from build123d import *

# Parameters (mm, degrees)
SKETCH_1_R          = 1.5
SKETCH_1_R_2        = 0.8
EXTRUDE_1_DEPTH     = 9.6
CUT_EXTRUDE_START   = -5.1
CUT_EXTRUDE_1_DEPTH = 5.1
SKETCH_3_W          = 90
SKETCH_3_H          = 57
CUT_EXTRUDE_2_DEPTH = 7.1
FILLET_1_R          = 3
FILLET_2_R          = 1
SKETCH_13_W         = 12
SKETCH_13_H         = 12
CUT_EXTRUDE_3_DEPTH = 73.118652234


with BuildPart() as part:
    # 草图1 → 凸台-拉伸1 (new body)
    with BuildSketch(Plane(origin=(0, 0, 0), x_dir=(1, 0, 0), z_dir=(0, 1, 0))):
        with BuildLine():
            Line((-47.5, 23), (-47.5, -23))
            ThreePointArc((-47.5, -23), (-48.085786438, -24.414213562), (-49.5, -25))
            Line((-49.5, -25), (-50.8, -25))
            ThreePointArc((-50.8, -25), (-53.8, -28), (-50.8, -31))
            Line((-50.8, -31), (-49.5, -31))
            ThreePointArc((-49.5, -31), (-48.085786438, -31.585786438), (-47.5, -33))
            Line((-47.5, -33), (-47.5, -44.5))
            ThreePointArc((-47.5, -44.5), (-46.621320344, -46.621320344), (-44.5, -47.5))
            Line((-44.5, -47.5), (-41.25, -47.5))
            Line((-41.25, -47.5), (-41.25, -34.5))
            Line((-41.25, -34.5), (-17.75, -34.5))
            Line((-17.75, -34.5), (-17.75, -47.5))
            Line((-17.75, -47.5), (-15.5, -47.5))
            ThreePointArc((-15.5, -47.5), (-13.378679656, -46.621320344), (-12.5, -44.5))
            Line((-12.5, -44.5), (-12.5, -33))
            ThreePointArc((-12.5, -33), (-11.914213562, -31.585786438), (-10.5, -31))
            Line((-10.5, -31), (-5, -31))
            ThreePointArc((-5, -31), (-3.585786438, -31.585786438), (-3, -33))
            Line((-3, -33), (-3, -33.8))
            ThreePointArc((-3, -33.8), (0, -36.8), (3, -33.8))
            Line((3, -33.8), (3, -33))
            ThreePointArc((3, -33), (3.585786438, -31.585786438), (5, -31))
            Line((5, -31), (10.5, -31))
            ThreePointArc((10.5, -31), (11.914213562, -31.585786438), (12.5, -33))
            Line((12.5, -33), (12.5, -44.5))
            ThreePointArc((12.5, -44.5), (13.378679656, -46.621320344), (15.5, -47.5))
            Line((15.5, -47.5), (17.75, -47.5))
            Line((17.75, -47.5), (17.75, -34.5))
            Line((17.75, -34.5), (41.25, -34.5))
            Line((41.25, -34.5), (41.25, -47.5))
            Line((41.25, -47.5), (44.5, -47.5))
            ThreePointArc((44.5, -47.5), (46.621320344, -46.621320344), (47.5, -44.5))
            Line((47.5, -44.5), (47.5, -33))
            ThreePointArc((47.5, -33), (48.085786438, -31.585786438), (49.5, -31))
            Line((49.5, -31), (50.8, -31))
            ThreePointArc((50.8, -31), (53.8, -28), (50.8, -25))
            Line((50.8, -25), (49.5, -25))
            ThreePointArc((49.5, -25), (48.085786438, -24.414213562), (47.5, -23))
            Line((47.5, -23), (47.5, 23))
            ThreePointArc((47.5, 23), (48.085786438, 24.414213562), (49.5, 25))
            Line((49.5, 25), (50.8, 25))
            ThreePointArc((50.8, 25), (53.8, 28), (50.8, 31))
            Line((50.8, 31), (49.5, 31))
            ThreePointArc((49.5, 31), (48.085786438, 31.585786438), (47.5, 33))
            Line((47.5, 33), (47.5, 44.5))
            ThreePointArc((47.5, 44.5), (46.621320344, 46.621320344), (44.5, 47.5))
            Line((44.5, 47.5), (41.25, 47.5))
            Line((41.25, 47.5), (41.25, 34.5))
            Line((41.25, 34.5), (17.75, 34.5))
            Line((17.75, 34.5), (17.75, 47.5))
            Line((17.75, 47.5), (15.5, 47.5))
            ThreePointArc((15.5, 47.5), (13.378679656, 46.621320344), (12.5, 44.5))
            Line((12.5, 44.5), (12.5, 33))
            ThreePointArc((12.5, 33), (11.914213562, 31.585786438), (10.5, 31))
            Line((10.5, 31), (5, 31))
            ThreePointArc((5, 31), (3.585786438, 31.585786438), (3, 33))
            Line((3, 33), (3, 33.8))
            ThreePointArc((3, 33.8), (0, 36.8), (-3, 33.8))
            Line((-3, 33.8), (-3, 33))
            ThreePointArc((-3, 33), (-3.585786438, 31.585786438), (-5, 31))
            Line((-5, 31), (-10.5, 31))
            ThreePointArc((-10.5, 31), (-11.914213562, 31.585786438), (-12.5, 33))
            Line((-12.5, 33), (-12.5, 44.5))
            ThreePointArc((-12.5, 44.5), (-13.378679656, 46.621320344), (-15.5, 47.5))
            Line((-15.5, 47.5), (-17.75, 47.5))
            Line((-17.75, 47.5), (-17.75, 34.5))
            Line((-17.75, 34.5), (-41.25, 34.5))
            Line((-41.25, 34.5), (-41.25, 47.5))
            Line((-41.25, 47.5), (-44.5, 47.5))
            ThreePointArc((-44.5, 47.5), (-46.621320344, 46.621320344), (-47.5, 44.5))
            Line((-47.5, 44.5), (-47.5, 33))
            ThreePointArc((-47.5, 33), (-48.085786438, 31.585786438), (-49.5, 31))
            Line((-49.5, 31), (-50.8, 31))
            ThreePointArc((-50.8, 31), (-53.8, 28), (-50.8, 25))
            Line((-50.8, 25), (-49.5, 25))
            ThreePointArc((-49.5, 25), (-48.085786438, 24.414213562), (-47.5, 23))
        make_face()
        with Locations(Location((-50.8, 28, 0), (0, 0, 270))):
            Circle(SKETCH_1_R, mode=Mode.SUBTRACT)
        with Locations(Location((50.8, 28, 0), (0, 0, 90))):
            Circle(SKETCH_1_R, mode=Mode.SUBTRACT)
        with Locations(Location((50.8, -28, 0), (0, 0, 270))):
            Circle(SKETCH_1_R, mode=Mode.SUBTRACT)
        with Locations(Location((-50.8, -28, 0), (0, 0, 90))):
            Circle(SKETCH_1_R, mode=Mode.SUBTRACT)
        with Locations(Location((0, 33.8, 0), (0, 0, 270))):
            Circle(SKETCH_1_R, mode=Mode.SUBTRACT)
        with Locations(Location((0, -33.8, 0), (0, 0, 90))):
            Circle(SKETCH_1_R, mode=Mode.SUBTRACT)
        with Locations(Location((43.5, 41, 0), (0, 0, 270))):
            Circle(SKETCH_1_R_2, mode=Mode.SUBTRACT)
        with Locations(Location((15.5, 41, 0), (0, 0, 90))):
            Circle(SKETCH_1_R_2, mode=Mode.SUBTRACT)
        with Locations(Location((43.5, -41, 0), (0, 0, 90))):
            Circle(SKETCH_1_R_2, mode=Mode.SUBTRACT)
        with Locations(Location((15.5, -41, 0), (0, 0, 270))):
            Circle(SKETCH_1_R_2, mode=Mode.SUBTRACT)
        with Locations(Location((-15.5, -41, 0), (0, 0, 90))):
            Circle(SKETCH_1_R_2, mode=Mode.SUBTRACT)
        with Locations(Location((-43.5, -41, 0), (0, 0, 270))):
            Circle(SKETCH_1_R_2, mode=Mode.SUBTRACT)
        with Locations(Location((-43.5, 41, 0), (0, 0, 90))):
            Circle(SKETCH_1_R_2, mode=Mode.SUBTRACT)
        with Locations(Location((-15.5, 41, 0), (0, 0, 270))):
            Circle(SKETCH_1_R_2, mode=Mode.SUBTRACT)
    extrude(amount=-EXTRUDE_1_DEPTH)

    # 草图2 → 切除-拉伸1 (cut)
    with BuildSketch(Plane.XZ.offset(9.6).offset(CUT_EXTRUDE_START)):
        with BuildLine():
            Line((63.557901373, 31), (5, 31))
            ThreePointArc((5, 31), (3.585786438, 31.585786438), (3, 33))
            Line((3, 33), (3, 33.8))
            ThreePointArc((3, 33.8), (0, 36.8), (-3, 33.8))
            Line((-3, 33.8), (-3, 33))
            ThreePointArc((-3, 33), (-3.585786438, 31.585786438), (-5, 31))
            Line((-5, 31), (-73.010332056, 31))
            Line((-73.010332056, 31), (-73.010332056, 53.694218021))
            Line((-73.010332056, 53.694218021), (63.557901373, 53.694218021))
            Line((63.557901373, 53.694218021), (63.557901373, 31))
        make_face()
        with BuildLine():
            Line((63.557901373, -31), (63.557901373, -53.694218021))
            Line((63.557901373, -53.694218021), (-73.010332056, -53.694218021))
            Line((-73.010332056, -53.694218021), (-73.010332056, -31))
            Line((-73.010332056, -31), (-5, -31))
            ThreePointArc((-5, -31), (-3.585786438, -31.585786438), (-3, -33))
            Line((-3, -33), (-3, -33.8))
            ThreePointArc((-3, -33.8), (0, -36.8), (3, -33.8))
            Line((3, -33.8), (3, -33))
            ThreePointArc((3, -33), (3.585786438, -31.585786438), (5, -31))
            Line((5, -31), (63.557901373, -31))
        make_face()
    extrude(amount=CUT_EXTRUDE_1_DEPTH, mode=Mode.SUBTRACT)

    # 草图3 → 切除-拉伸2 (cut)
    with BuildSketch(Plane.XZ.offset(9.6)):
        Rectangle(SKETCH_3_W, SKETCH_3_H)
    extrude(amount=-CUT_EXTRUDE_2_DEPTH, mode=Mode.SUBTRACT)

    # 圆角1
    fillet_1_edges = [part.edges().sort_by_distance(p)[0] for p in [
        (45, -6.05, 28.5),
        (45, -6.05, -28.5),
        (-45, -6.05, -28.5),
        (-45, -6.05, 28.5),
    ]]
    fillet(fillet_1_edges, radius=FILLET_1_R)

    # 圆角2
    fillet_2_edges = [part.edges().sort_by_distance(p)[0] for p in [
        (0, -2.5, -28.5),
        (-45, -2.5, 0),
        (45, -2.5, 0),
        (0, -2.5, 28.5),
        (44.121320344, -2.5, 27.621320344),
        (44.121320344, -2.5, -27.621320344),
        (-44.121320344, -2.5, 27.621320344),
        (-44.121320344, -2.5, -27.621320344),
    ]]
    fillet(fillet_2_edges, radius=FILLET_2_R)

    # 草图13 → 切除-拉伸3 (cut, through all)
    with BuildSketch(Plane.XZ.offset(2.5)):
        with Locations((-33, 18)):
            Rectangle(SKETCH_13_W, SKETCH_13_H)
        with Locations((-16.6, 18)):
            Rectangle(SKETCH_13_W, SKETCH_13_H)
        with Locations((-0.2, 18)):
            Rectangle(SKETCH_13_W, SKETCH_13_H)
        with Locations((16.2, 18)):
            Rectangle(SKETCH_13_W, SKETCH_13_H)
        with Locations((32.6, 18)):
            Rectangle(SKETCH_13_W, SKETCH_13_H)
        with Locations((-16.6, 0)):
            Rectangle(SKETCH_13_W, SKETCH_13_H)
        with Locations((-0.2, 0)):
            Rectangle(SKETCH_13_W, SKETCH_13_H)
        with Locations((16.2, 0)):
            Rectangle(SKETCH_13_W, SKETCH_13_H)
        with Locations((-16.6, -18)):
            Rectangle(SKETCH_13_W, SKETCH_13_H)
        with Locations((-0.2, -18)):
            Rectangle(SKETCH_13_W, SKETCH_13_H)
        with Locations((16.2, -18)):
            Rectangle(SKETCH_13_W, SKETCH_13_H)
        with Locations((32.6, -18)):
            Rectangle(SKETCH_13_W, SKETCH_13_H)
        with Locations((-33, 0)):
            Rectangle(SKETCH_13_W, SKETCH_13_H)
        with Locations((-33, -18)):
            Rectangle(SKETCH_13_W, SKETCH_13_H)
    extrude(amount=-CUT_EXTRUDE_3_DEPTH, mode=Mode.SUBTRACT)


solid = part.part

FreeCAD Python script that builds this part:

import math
import FreeCAD as App
import Part
import Sketcher
Q = App.Units.Quantity


def edges_at(feature, points):
    """Names of the edges that pass closest to the given points."""
    edges = feature.Shape.Edges
    near = lambda p: min(range(len(edges)), key=lambda i: edges[i].distToShape(Part.Vertex(*p))[0])
    return sorted({f"Edge{near(p) + 1}" for p in points})

doc = App.newDocument("Part")
params = doc.addObject("Spreadsheet::Sheet", "Params")
for row, (alias, value) in enumerate([
    ("sketch1_diameter", "3 mm"),
    ("sketch1_radius", "2 mm"),
    ("sketch1_radius2", "3 mm"),
    ("sketch1_diameter2", "1.6 mm"),
    ("sketch1_height", "46 mm"),
    ("pad1_length", "9.6 mm"),
    ("sketch2_radius", "2 mm"),
    ("sketch2_radius2", "3 mm"),
    ("sketch2_height", "0.8 mm"),
    ("pocket1_length", "5.1 mm"),
    ("sketch3_width", "90 mm"),
    ("sketch3_height", "57 mm"),
    ("pocket2_length", "7.1 mm"),
    ("fillet_radius", "3 mm"),
    ("fillet2_radius", "1 mm"),
    ("sketch4_width", "12 mm"),
], start=1):
    params.set(f"A{row}", alias)
    params.set(f"B{row}", "=" + value)
    params.setAlias(f"B{row}", alias)

body = doc.addObject("PartDesign::Body", "Body")

sketch1 = doc.addObject("Sketcher::SketchObject", "Sketch")
body.addObject(sketch1)
sketch1.AttachmentSupport = (doc.XZ_Plane, [""])
sketch1.MapMode = "FlatFace"
sketch1.addGeometry([
    Part.LineSegment(App.Vector(-47.5, -23, 0), App.Vector(-47.5, 23, 0)),
    Part.ArcOfCircle(Part.Circle(App.Vector(-49.5, 23, 0), App.Vector(0, 0, 1), 2), math.radians(0), math.radians(90)),
    Part.LineSegment(App.Vector(-49.5, 25, 0), App.Vector(-50.8, 25, 0)),
    Part.ArcOfCircle(Part.Circle(App.Vector(-50.8, 28, 0), App.Vector(0, 0, 1), 3), math.radians(90), math.radians(270)),
    Part.LineSegment(App.Vector(-50.8, 31, 0), App.Vector(-49.5, 31, 0)),
    Part.ArcOfCircle(Part.Circle(App.Vector(-49.5, 33, 0), App.Vector(0, 0, 1), 2), math.radians(-90), math.radians(0)),
    Part.LineSegment(App.Vector(-47.5, 33, 0), App.Vector(-47.5, 44.5, 0)),
    Part.ArcOfCircle(Part.Circle(App.Vector(-44.5, 44.5, 0), App.Vector(0, 0, 1), 3), math.radians(90), math.radians(180)),
    Part.LineSegment(App.Vector(-44.5, 47.5, 0), App.Vector(-41.2, 47.5, 0)),
    Part.LineSegment(App.Vector(-41.2, 47.5, 0), App.Vector(-41.2, 34.5, 0)),
    Part.LineSegment(App.Vector(-41.2, 34.5, 0), App.Vector(-17.8, 34.5, 0)),
    Part.LineSegment(App.Vector(-17.8, 34.5, 0), App.Vector(-17.8, 47.5, 0)),
    Part.LineSegment(App.Vector(-17.8, 47.5, 0), App.Vector(-15.5, 47.5, 0)),
    Part.ArcOfCircle(Part.Circle(App.Vector(-15.5, 44.5, 0), App.Vector(0, 0, 1), 3), math.radians(0), math.radians(90)),
    Part.LineSegment(App.Vector(-12.5, 44.5, 0), App.Vector(-12.5, 33, 0)),
    Part.ArcOfCircle(Part.Circle(App.Vector(-10.5, 33, 0), App.Vector(0, 0, 1), 2), math.radians(-180), math.radians(-90)),
    Part.LineSegment(App.Vector(-10.5, 31, 0), App.Vector(-5, 31, 0)),
    Part.ArcOfCircle(Part.Circle(App.Vector(-5, 33, 0), App.Vector(0, 0, 1), 2), math.radians(-90), math.radians(0)),
    Part.LineSegment(App.Vector(-3, 33, 0), App.Vector(-3, 33.8, 0)),
    Part.ArcOfCircle(Part.Circle(App.Vector(0, 33.8, 0), App.Vector(0, 0, 1), 3), math.radians(0), math.radians(180)),
    Part.LineSegment(App.Vector(3, 33.8, 0), App.Vector(3, 33, 0)),
    Part.ArcOfCircle(Part.Circle(App.Vector(5, 33, 0), App.Vector(0, 0, 1), 2), math.radians(-180), math.radians(-90)),
    Part.LineSegment(App.Vector(5, 31, 0), App.Vector(10.5, 31, 0)),
    Part.ArcOfCircle(Part.Circle(App.Vector(10.5, 33, 0), App.Vector(0, 0, 1), 2), math.radians(-90), math.radians(0)),
    Part.LineSegment(App.Vector(12.5, 33, 0), App.Vector(12.5, 44.5, 0)),
    Part.ArcOfCircle(Part.Circle(App.Vector(15.5, 44.5, 0), App.Vector(0, 0, 1), 3), math.radians(90), math.radians(180)),
    Part.LineSegment(App.Vector(15.5, 47.5, 0), App.Vector(17.8, 47.5, 0)),
    Part.LineSegment(App.Vector(17.8, 47.5, 0), App.Vector(17.8, 34.5, 0)),
    Part.LineSegment(App.Vector(17.8, 34.5, 0), App.Vector(41.2, 34.5, 0)),
    Part.LineSegment(App.Vector(41.2, 34.5, 0), App.Vector(41.2, 47.5, 0)),
    Part.LineSegment(App.Vector(41.2, 47.5, 0), App.Vector(44.5, 47.5, 0)),
    Part.ArcOfCircle(Part.Circle(App.Vector(44.5, 44.5, 0), App.Vector(0, 0, 1), 3), math.radians(0), math.radians(90)),
    Part.LineSegment(App.Vector(47.5, 44.5, 0), App.Vector(47.5, 33, 0)),
    Part.ArcOfCircle(Part.Circle(App.Vector(49.5, 33, 0), App.Vector(0, 0, 1), 2), math.radians(-180), math.radians(-90)),
    Part.LineSegment(App.Vector(49.5, 31, 0), App.Vector(50.8, 31, 0)),
    Part.ArcOfCircle(Part.Circle(App.Vector(50.8, 28, 0), App.Vector(0, 0, 1), 3), math.radians(-90), math.radians(90)),
    Part.LineSegment(App.Vector(50.8, 25, 0), App.Vector(49.5, 25, 0)),
    Part.ArcOfCircle(Part.Circle(App.Vector(49.5, 23, 0), App.Vector(0, 0, 1), 2), math.radians(90), math.radians(180)),
    Part.LineSegment(App.Vector(47.5, 23, 0), App.Vector(47.5, -23, 0)),
    Part.ArcOfCircle(Part.Circle(App.Vector(49.5, -23, 0), App.Vector(0, 0, 1), 2), math.radians(-180), math.radians(-90)),
    Part.LineSegment(App.Vector(49.5, -25, 0), App.Vector(50.8, -25, 0)),
    Part.ArcOfCircle(Part.Circle(App.Vector(50.8, -28, 0), App.Vector(0, 0, 1), 3), math.radians(-90), math.radians(90)),
    Part.LineSegment(App.Vector(50.8, -31, 0), App.Vector(49.5, -31, 0)),
    Part.ArcOfCircle(Part.Circle(App.Vector(49.5, -33, 0), App.Vector(0, 0, 1), 2), math.radians(90), math.radians(180)),
    Part.LineSegment(App.Vector(47.5, -33, 0), App.Vector(47.5, -44.5, 0)),
    Part.ArcOfCircle(Part.Circle(App.Vector(44.5, -44.5, 0), App.Vector(0, 0, 1), 3), math.radians(-90), math.radians(0)),
    Part.LineSegment(App.Vector(44.5, -47.5, 0), App.Vector(41.2, -47.5, 0)),
    Part.LineSegment(App.Vector(41.2, -47.5, 0), App.Vector(41.2, -34.5, 0)),
    Part.LineSegment(App.Vector(41.2, -34.5, 0), App.Vector(17.8, -34.5, 0)),
    Part.LineSegment(App.Vector(17.8, -34.5, 0), App.Vector(17.8, -47.5, 0)),
    Part.LineSegment(App.Vector(17.8, -47.5, 0), App.Vector(15.5, -47.5, 0)),
    Part.ArcOfCircle(Part.Circle(App.Vector(15.5, -44.5, 0), App.Vector(0, 0, 1), 3), math.radians(180), math.radians(270)),
    Part.LineSegment(App.Vector(12.5, -44.5, 0), App.Vector(12.5, -33, 0)),
    Part.ArcOfCircle(Part.Circle(App.Vector(10.5, -33, 0), App.Vector(0, 0, 1), 2), math.radians(0), math.radians(90)),
    Part.LineSegment(App.Vector(10.5, -31, 0), App.Vector(5, -31, 0)),
    Part.ArcOfCircle(Part.Circle(App.Vector(5, -33, 0), App.Vector(0, 0, 1), 2), math.radians(90), math.radians(180)),
    Part.LineSegment(App.Vector(3, -33, 0), App.Vector(3, -33.8, 0)),
    Part.ArcOfCircle(Part.Circle(App.Vector(0, -33.8, 0), App.Vector(0, 0, 1), 3), math.radians(180), math.radians(360)),
    Part.LineSegment(App.Vector(-3, -33.8, 0), App.Vector(-3, -33, 0)),
    Part.ArcOfCircle(Part.Circle(App.Vector(-5, -33, 0), App.Vector(0, 0, 1), 2), math.radians(0), math.radians(90)),
    Part.LineSegment(App.Vector(-5, -31, 0), App.Vector(-10.5, -31, 0)),
    Part.ArcOfCircle(Part.Circle(App.Vector(-10.5, -33, 0), App.Vector(0, 0, 1), 2), math.radians(90), math.radians(180)),
    Part.LineSegment(App.Vector(-12.5, -33, 0), App.Vector(-12.5, -44.5, 0)),
    Part.ArcOfCircle(Part.Circle(App.Vector(-15.5, -44.5, 0), App.Vector(0, 0, 1), 3), math.radians(-90), math.radians(0)),
    Part.LineSegment(App.Vector(-15.5, -47.5, 0), App.Vector(-17.8, -47.5, 0)),
    Part.LineSegment(App.Vector(-17.8, -47.5, 0), App.Vector(-17.8, -34.5, 0)),
    Part.LineSegment(App.Vector(-17.8, -34.5, 0), App.Vector(-41.2, -34.5, 0)),
    Part.LineSegment(App.Vector(-41.2, -34.5, 0), App.Vector(-41.2, -47.5, 0)),
    Part.LineSegment(App.Vector(-41.2, -47.5, 0), App.Vector(-44.5, -47.5, 0)),
    Part.ArcOfCircle(Part.Circle(App.Vector(-44.5, -44.5, 0), App.Vector(0, 0, 1), 3), math.radians(180), math.radians(270)),
    Part.LineSegment(App.Vector(-47.5, -44.5, 0), App.Vector(-47.5, -33, 0)),
    Part.ArcOfCircle(Part.Circle(App.Vector(-49.5, -33, 0), App.Vector(0, 0, 1), 2), math.radians(0), math.radians(90)),
    Part.LineSegment(App.Vector(-49.5, -31, 0), App.Vector(-50.8, -31, 0)),
    Part.ArcOfCircle(Part.Circle(App.Vector(-50.8, -28, 0), App.Vector(0, 0, 1), 3), math.radians(90), math.radians(270)),
    Part.LineSegment(App.Vector(-50.8, -25, 0), App.Vector(-49.5, -25, 0)),
    Part.ArcOfCircle(Part.Circle(App.Vector(-49.5, -23, 0), App.Vector(0, 0, 1), 2), math.radians(-90), math.radians(0)),
    Part.Circle(App.Vector(-43.5, 41, 0), App.Vector(0, 0, 1), 0.8),
    Part.Circle(App.Vector(-50.8, 28, 0), App.Vector(0, 0, 1), 1.5),
    Part.Circle(App.Vector(-15.5, 41, 0), App.Vector(0, 0, 1), 0.8),
    Part.Circle(App.Vector(0, 33.8, 0), App.Vector(0, 0, 1), 1.5),
    Part.Circle(App.Vector(15.5, 41, 0), App.Vector(0, 0, 1), 0.8),
    Part.Circle(App.Vector(43.5, 41, 0), App.Vector(0, 0, 1), 0.8),
    Part.Circle(App.Vector(50.8, 28, 0), App.Vector(0, 0, 1), 1.5),
    Part.Circle(App.Vector(-50.8, -28, 0), App.Vector(0, 0, 1), 1.5),
    Part.Circle(App.Vector(-43.5, -41, 0), App.Vector(0, 0, 1), 0.8),
    Part.Circle(App.Vector(-15.5, -41, 0), App.Vector(0, 0, 1), 0.8),
    Part.Circle(App.Vector(0, -33.8, 0), App.Vector(0, 0, 1), 1.5),
    Part.Circle(App.Vector(15.5, -41, 0), App.Vector(0, 0, 1), 0.8),
    Part.Circle(App.Vector(50.8, -28, 0), App.Vector(0, 0, 1), 1.5),
    Part.Circle(App.Vector(43.5, -41, 0), App.Vector(0, 0, 1), 0.8),
], False)
sketch1.addConstraint([
    Sketcher.Constraint("Tangent", 0, 2, 1, 1),
    Sketcher.Constraint("Tangent", 1, 2, 2, 1),
    Sketcher.Constraint("Tangent", 2, 2, 3, 2),
    Sketcher.Constraint("Tangent", 3, 1, 4, 1),
    Sketcher.Constraint("Tangent", 4, 2, 5, 1),
    Sketcher.Constraint("Tangent", 5, 2, 6, 1),
    Sketcher.Constraint("Tangent", 6, 2, 7, 2),
    Sketcher.Constraint("Tangent", 7, 1, 8, 1),
    Sketcher.Constraint("Coincident", 8, 2, 9, 1),
    Sketcher.Constraint("Coincident", 9, 2, 10, 1),
    Sketcher.Constraint("Coincident", 10, 2, 11, 1),
    Sketcher.Constraint("Coincident", 11, 2, 12, 1),
    Sketcher.Constraint("Tangent", 12, 2, 13, 2),
    Sketcher.Constraint("Tangent", 13, 1, 14, 1),
    Sketcher.Constraint("Tangent", 14, 2, 15, 1),
    Sketcher.Constraint("Tangent", 15, 2, 16, 1),
    Sketcher.Constraint("Tangent", 16, 2, 17, 1),
    Sketcher.Constraint("Tangent", 17, 2, 18, 1),
    Sketcher.Constraint("Tangent", 18, 2, 19, 2),
    Sketcher.Constraint("Tangent", 19, 1, 20, 1),
    Sketcher.Constraint("Tangent", 20, 2, 21, 1),
    Sketcher.Constraint("Tangent", 21, 2, 22, 1),
    Sketcher.Constraint("Tangent", 22, 2, 23, 1),
    Sketcher.Constraint("Tangent", 23, 2, 24, 1),
    Sketcher.Constraint("Tangent", 24, 2, 25, 2),
    Sketcher.Constraint("Tangent", 25, 1, 26, 1),
    Sketcher.Constraint("Coincident", 26, 2, 27, 1),
    Sketcher.Constraint("Coincident", 27, 2, 28, 1),
    Sketcher.Constraint("Coincident", 28, 2, 29, 1),
    Sketcher.Constraint("Coincident", 29, 2, 30, 1),
    Sketcher.Constraint("Tangent", 30, 2, 31, 2),
    Sketcher.Constraint("Tangent", 31, 1, 32, 1),
    Sketcher.Constraint("Tangent", 32, 2, 33, 1),
    Sketcher.Constraint("Tangent", 33, 2, 34, 1),
    Sketcher.Constraint("Tangent", 34, 2, 35, 2),
    Sketcher.Constraint("Tangent", 35, 1, 36, 1),
    Sketcher.Constraint("Tangent", 36, 2, 37, 1),
    Sketcher.Constraint("Tangent", 37, 2, 38, 1),
    Sketcher.Constraint("Tangent", 38, 2, 39, 1),
    Sketcher.Constraint("Tangent", 39, 2, 40, 1),
    Sketcher.Constraint("Tangent", 40, 2, 41, 2),
    Sketcher.Constraint("Tangent", 41, 1, 42, 1),
    Sketcher.Constraint("Tangent", 42, 2, 43, 1),
    Sketcher.Constraint("Tangent", 43, 2, 44, 1),
    Sketcher.Constraint("Tangent", 44, 2, 45, 2),
    Sketcher.Constraint("Tangent", 45, 1, 46, 1),
    Sketcher.Constraint("Coincident", 46, 2, 47, 1),
    Sketcher.Constraint("Coincident", 47, 2, 48, 1),
    Sketcher.Constraint("Coincident", 48, 2, 49, 1),
    Sketcher.Constraint("Coincident", 49, 2, 50, 1),
    Sketcher.Constraint("Tangent", 50, 2, 51, 2),
    Sketcher.Constraint("Tangent", 51, 1, 52, 1),
    Sketcher.Constraint("Tangent", 52, 2, 53, 1),
    Sketcher.Constraint("Tangent", 53, 2, 54, 1),
    Sketcher.Constraint("Tangent", 54, 2, 55, 1),
    Sketcher.Constraint("Tangent", 55, 2, 56, 1),
    Sketcher.Constraint("Tangent", 56, 2, 57, 2),
    Sketcher.Constraint("Tangent", 57, 1, 58, 1),
    Sketcher.Constraint("Tangent", 58, 2, 59, 1),
    Sketcher.Constraint("Tangent", 59, 2, 60, 1),
    Sketcher.Constraint("Tangent", 60, 2, 61, 1),
    Sketcher.Constraint("Tangent", 61, 2, 62, 1),
    Sketcher.Constraint("Tangent", 62, 2, 63, 2),
    Sketcher.Constraint("Tangent", 63, 1, 64, 1),
    Sketcher.Constraint("Coincident", 64, 2, 65, 1),
    Sketcher.Constraint("Coincident", 65, 2, 66, 1),
    Sketcher.Constraint("Coincident", 66, 2, 67, 1),
    Sketcher.Constraint("Coincident", 67, 2, 68, 1),
    Sketcher.Constraint("Tangent", 68, 2, 69, 2),
    Sketcher.Constraint("Tangent", 69, 1, 70, 1),
    Sketcher.Constraint("Tangent", 70, 2, 71, 1),
    Sketcher.Constraint("Tangent", 71, 2, 72, 1),
    Sketcher.Constraint("Tangent", 72, 2, 73, 2),
    Sketcher.Constraint("Tangent", 73, 1, 74, 1),
    Sketcher.Constraint("Tangent", 74, 2, 75, 1),
    Sketcher.Constraint("Tangent", 75, 2, 0, 1),
    Sketcher.Constraint("Vertical", 0),
    Sketcher.Constraint("Horizontal", 2),
    Sketcher.Constraint("Horizontal", 4),
    Sketcher.Constraint("Vertical", 6),
    Sketcher.Constraint("Horizontal", 8),
    Sketcher.Constraint("Vertical", 9),
    Sketcher.Constraint("Horizontal", 10),
    Sketcher.Constraint("Vertical", 11),
    Sketcher.Constraint("Horizontal", 12),
    Sketcher.Constraint("Vertical", 14),
    Sketcher.Constraint("Horizontal", 16),
    Sketcher.Constraint("Vertical", 18),
    Sketcher.Constraint("Vertical", 20),
    Sketcher.Constraint("Horizontal", 22),
    Sketcher.Constraint("Vertical", 24),
    Sketcher.Constraint("Horizontal", 26),
    Sketcher.Constraint("Vertical", 27),
    Sketcher.Constraint("Horizontal", 28),
    Sketcher.Constraint("Vertical", 29),
    Sketcher.Constraint("Horizontal", 30),
    Sketcher.Constraint("Vertical", 32),
    Sketcher.Constraint("Horizontal", 34),
    Sketcher.Constraint("Horizontal", 36),
    Sketcher.Constraint("Vertical", 38),
    Sketcher.Constraint("Horizontal", 40),
    Sketcher.Constraint("Horizontal", 42),
    Sketcher.Constraint("Vertical", 44),
    Sketcher.Constraint("Horizontal", 46),
    Sketcher.Constraint("Vertical", 47),
    Sketcher.Constraint("Horizontal", 48),
    Sketcher.Constraint("Vertical", 49),
    Sketcher.Constraint("Horizontal", 50),
    Sketcher.Constraint("Vertical", 52),
    Sketcher.Constraint("Horizontal", 54),
    Sketcher.Constraint("Vertical", 56),
    Sketcher.Constraint("Vertical", 58),
    Sketcher.Constraint("Horizontal", 60),
    Sketcher.Constraint("Vertical", 62),
    Sketcher.Constraint("Horizontal", 64),
    Sketcher.Constraint("Vertical", 65),
    Sketcher.Constraint("Horizontal", 66),
    Sketcher.Constraint("Vertical", 67),
    Sketcher.Constraint("Horizontal", 68),
    Sketcher.Constraint("Vertical", 70),
    Sketcher.Constraint("Horizontal", 72),
    Sketcher.Constraint("Horizontal", 74),
    Sketcher.Constraint("Coincident", 77, 3, 3, 3),
    Sketcher.Constraint("Coincident", 79, 3, 19, 3),
    Sketcher.Constraint("Coincident", 82, 3, 35, 3),
    Sketcher.Constraint("Coincident", 83, 3, 73, 3),
    Sketcher.Constraint("Coincident", 86, 3, 57, 3),
    Sketcher.Constraint("Coincident", 88, 3, 41, 3),
    Sketcher.Constraint("Equal", 1, 5),
    Sketcher.Constraint("Equal", 3, 7),
    Sketcher.Constraint("Equal", 7, 13),
    Sketcher.Constraint("Equal", 5, 15),
    Sketcher.Constraint("Equal", 15, 17),
    Sketcher.Constraint("Equal", 13, 19),
    Sketcher.Constraint("Equal", 17, 21),
    Sketcher.Constraint("Equal", 21, 23),
    Sketcher.Constraint("Equal", 19, 25),
    Sketcher.Constraint("Equal", 25, 31),
    Sketcher.Constraint("Equal", 23, 33),
    Sketcher.Constraint("Equal", 31, 35),
    Sketcher.Constraint("Equal", 33, 37),
    Sketcher.Constraint("Equal", 37, 39),
    Sketcher.Constraint("Equal", 35, 41),
    Sketcher.Constraint("Equal", 39, 43),
    Sketcher.Constraint("Equal", 41, 45),
    Sketcher.Constraint("Equal", 45, 51),
    Sketcher.Constraint("Equal", 43, 53),
    Sketcher.Constraint("Equal", 53, 55),
    Sketcher.Constraint("Equal", 51, 57),
    Sketcher.Constraint("Equal", 55, 59),
    Sketcher.Constraint("Equal", 59, 61),
    Sketcher.Constraint("Equal", 57, 63),
    Sketcher.Constraint("Equal", 63, 69),
    Sketcher.Constraint("Equal", 61, 71),
    Sketcher.Constraint("Equal", 69, 73),
    Sketcher.Constraint("Equal", 71, 75),
    Sketcher.Constraint("Equal", 76, 78),
    Sketcher.Constraint("Equal", 77, 79),
    Sketcher.Constraint("Equal", 78, 80),
    Sketcher.Constraint("Equal", 80, 81),
    Sketcher.Constraint("Equal", 79, 82),
    Sketcher.Constraint("Equal", 82, 83),
    Sketcher.Constraint("Equal", 81, 84),
    Sketcher.Constraint("Equal", 84, 85),
    Sketcher.Constraint("Equal", 83, 86),
    Sketcher.Constraint("Equal", 85, 87),
    Sketcher.Constraint("Equal", 86, 88),
    Sketcher.Constraint("Equal", 87, 89),
    Sketcher.Constraint("Symmetric", 1, 3, 39, 3, -1, 1),
    Sketcher.Constraint("Symmetric", 7, 3, 45, 3, -1, 1),
    Sketcher.Constraint("Symmetric", 13, 3, 51, 3, -1, 1),
    Sketcher.Constraint("Symmetric", 17, 3, 55, 3, -1, 1),
    Sketcher.Constraint("Symmetric", 23, 3, 61, 3, -1, 1),
    Sketcher.Constraint("Symmetric", 31, 3, 69, 3, -1, 1),
    Sketcher.Constraint("Symmetric", 35, 3, 73, 3, -1, 1),
    Sketcher.Constraint("Symmetric", 81, 3, 84, 3, -1, 1),
    Sketcher.Constraint("Symmetric", 80, 3, 85, 3, -1, 1),
    Sketcher.Constraint("Symmetric", 78, 3, 87, 3, -1, 1),
    Sketcher.Constraint("Symmetric", 76, 3, 89, 3, -1, 1),
    Sketcher.Constraint("Symmetric", 9, 2, 47, 2, -1, 1),
    Sketcher.Constraint("Symmetric", 26, 2, 64, 2, -1, 1),
    Sketcher.Constraint("Symmetric", 28, 2, 66, 2, -1, 1),
    Sketcher.Constraint("Symmetric", 17, 3, 21, 3, -2),
    Sketcher.Constraint("Symmetric", 13, 3, 25, 3, -2),
    Sketcher.Constraint("Symmetric", 7, 3, 31, 3, -2),
    Sketcher.Constraint("Symmetric", 3, 3, 35, 3, -2),
    Sketcher.Constraint("Symmetric", 78, 3, 80, 3, -2),
    Sketcher.Constraint("Symmetric", 76, 3, 81, 3, -2),
    Sketcher.Constraint("Symmetric", 10, 2, 27, 2, -2),
    Sketcher.Constraint("Horizontal", 7, 3, 13, 3),
    Sketcher.Constraint("Horizontal", 5, 3, 15, 3),
    Sketcher.Constraint("Horizontal", 76, 3, 78, 3),
    Sketcher.Constraint("Vertical", 1, 3, 5, 3),
    Sketcher.Constraint("Vertical", 35, 3, 41, 3),
    Sketcher.Constraint("Vertical", 63, 3, 78, 3),
    Sketcher.Constraint("Vertical", 29, 2, 46, 2),
    Sketcher.Constraint("Vertical", 27, 2, 48, 2),
    Sketcher.Constraint("Equal", 20, 56),
    Sketcher.Constraint("Diameter", 77, Q("3 mm")),
    Sketcher.Constraint("Radius", 1, Q("2 mm")),
    Sketcher.Constraint("Radius", 3, Q("3 mm")),
    Sketcher.Constraint("Diameter", 76, Q("1.6 mm")),
    Sketcher.Constraint("DistanceY", 0, 1, 0, 2, Q("46 mm")),
    Sketcher.Constraint("DistanceY", 9, 2, 9, 1, Q("13 mm")),
    Sketcher.Constraint("DistanceX", 2, 2, 2, 1, Q("1.3 mm")),
    Sketcher.Constraint("DistanceX", 10, 1, 10, 2, Q("23.5 mm")),
    Sketcher.Constraint("DistanceX", 16, 1, 16, 2, Q("5.5 mm")),
    Sketcher.Constraint("DistanceY", 6, 1, 6, 2, Q("11.5 mm")),
    Sketcher.Constraint("DistanceY", 18, 1, 18, 2, Q("0.8 mm")),
    Sketcher.Constraint("DistanceY", -1, 1, 76, 3, Q("41 mm")),
    Sketcher.Constraint("DistanceX", 8, 1, 8, 2, Q("3.25 mm")),
    Sketcher.Constraint("DistanceX", 12, 1, 12, 2, Q("2.25 mm")),
    Sketcher.Constraint("DistanceX", 76, 3, -1, 1, Q("43.5 mm")),
])
sketch1.setExpression("Constraints[198]", "Params.sketch1_diameter")
sketch1.setExpression("Constraints[199]", "Params.sketch1_radius")
sketch1.setExpression("Constraints[200]", "Params.sketch1_radius2")
sketch1.setExpression("Constraints[201]", "Params.sketch1_diameter2")
sketch1.setExpression("Constraints[202]", "Params.sketch1_height")
pad1 = doc.addObject("PartDesign::Pad", "Pad")
body.addObject(pad1)
pad1.Profile = sketch1
pad1.setExpression("Length", "Params.pad1_length")

sketch2 = doc.addObject("Sketcher::SketchObject", "Sketch001")
body.addObject(sketch2)
sketch2.AttachmentSupport = (doc.XZ_Plane, [""])
sketch2.MapMode = "FlatFace"
sketch2.AttachmentOffset = App.Placement(App.Vector(0, 0, 4.5), App.Rotation())
sketch2.addGeometry([
    Part.LineSegment(App.Vector(5, 31, 0), App.Vector(63.6, 31, 0)),
    Part.LineSegment(App.Vector(63.6, 31, 0), App.Vector(63.6, 53.7, 0)),
    Part.LineSegment(App.Vector(63.6, 53.7, 0), App.Vector(-73, 53.7, 0)),
    Part.LineSegment(App.Vector(-73, 53.7, 0), App.Vector(-73, 31, 0)),
    Part.LineSegment(App.Vector(-73, 31, 0), App.Vector(-5, 31, 0)),
    Part.ArcOfCircle(Part.Circle(App.Vector(-5, 33, 0), App.Vector(0, 0, 1), 2), math.radians(-90), math.radians(0)),
    Part.LineSegment(App.Vector(-3, 33, 0), App.Vector(-3, 33.8, 0)),
    Part.ArcOfCircle(Part.Circle(App.Vector(0, 33.8, 0), App.Vector(0, 0, 1), 3), math.radians(0), math.radians(180)),
    Part.LineSegment(App.Vector(3, 33.8, 0), App.Vector(3, 33, 0)),
    Part.ArcOfCircle(Part.Circle(App.Vector(5, 33, 0), App.Vector(0, 0, 1), 2), math.radians(-180), math.radians(-90)),
    Part.LineSegment(App.Vector(63.6, -53.7, 0), App.Vector(63.6, -31, 0)),
    Part.LineSegment(App.Vector(63.6, -31, 0), App.Vector(5, -31, 0)),
    Part.ArcOfCircle(Part.Circle(App.Vector(5, -33, 0), App.Vector(0, 0, 1), 2), math.radians(90), math.radians(180)),
    Part.LineSegment(App.Vector(3, -33, 0), App.Vector(3, -33.8, 0)),
    Part.ArcOfCircle(Part.Circle(App.Vector(0, -33.8, 0), App.Vector(0, 0, 1), 3), math.radians(180), math.radians(360)),
    Part.LineSegment(App.Vector(-3, -33.8, 0), App.Vector(-3, -33, 0)),
    Part.ArcOfCircle(Part.Circle(App.Vector(-5, -33, 0), App.Vector(0, 0, 1), 2), math.radians(0), math.radians(90)),
    Part.LineSegment(App.Vector(-5, -31, 0), App.Vector(-73, -31, 0)),
    Part.LineSegment(App.Vector(-73, -31, 0), App.Vector(-73, -53.7, 0)),
    Part.LineSegment(App.Vector(-73, -53.7, 0), App.Vector(63.6, -53.7, 0)),
], False)
sketch2.addConstraint([
    Sketcher.Constraint("Coincident", 0, 2, 1, 1),
    Sketcher.Constraint("Coincident", 1, 2, 2, 1),
    Sketcher.Constraint("Coincident", 2, 2, 3, 1),
    Sketcher.Constraint("Coincident", 3, 2, 4, 1),
    Sketcher.Constraint("Tangent", 4, 2, 5, 1),
    Sketcher.Constraint("Tangent", 5, 2, 6, 1),
    Sketcher.Constraint("Tangent", 6, 2, 7, 2),
    Sketcher.Constraint("Tangent", 7, 1, 8, 1),
    Sketcher.Constraint("Tangent", 8, 2, 9, 1),
    Sketcher.Constraint("Tangent", 9, 2, 0, 1),
    Sketcher.Constraint("Coincident", 10, 2, 11, 1),
    Sketcher.Constraint("Tangent", 11, 2, 12, 1),
    Sketcher.Constraint("Tangent", 12, 2, 13, 1),
    Sketcher.Constraint("Tangent", 13, 2, 14, 2),
    Sketcher.Constraint("Tangent", 14, 1, 15, 1),
    Sketcher.Constraint("Tangent", 15, 2, 16, 1),
    Sketcher.Constraint("Tangent", 16, 2, 17, 1),
    Sketcher.Constraint("Coincident", 17, 2, 18, 1),
    Sketcher.Constraint("Coincident", 18, 2, 19, 1),
    Sketcher.Constraint("Coincident", 19, 2, 10, 1),
    Sketcher.Constraint("Horizontal", 0),
    Sketcher.Constraint("Vertical", 1),
    Sketcher.Constraint("Horizontal", 2),
    Sketcher.Constraint("Vertical", 3),
    Sketcher.Constraint("Horizontal", 4),
    Sketcher.Constraint("Vertical", 6),
    Sketcher.Constraint("Vertical", 8),
    Sketcher.Constraint("Vertical", 10),
    Sketcher.Constraint("Horizontal", 11),
    Sketcher.Constraint("Vertical", 13),
    Sketcher.Constraint("Vertical", 15),
    Sketcher.Constraint("Horizontal", 17),
    Sketcher.Constraint("Vertical", 18),
    Sketcher.Constraint("Horizontal", 19),
    Sketcher.Constraint("Equal", 5, 9),
    Sketcher.Constraint("Equal", 9, 12),
    Sketcher.Constraint("Equal", 7, 14),
    Sketcher.Constraint("Equal", 12, 16),
    Sketcher.Constraint("Symmetric", 5, 3, 12, 3, -1, 1),
    Sketcher.Constraint("Symmetric", 5, 3, 9, 3, -2),
    Sketcher.Constraint("Symmetric", 3, 2, 17, 2, -1),
    Sketcher.Constraint("Symmetric", 1, 2, 19, 2, -1),
    Sketcher.Constraint("Equal", 8, 13),
    Sketcher.Constraint("Radius", 5, Q("2 mm")),
    Sketcher.Constraint("Radius", 7, Q("3 mm")),
    Sketcher.Constraint("DistanceY", 6, 1, 6, 2, Q("0.8 mm")),
    Sketcher.Constraint("DistanceY", -1, 1, 5, 3, Q("33 mm")),
    Sketcher.Constraint("DistanceX", 0, 1, 0, 2, Q("58.557901 mm")),
    Sketcher.Constraint("DistanceY", 1, 1, 1, 2, Q("22.694218 mm")),
    Sketcher.Constraint("DistanceX", 2, 2, 2, 1, Q("136.568233 mm")),
])
sketch2.setExpression("Constraints[43]", "Params.sketch2_radius")
sketch2.setExpression("Constraints[44]", "Params.sketch2_radius2")
sketch2.setExpression("Constraints[45]", "Params.sketch2_height")
pocket1 = doc.addObject("PartDesign::Pocket", "Pocket")
body.addObject(pocket1)
pocket1.Profile = sketch2
pocket1.setExpression("Length", "Params.pocket1_length")
pocket1.Reversed = True

sketch3 = doc.addObject("Sketcher::SketchObject", "Sketch002")
body.addObject(sketch3)
sketch3.AttachmentSupport = (doc.XZ_Plane, [""])
sketch3.MapMode = "FlatFace"
sketch3.AttachmentOffset = App.Placement(App.Vector(0, 0, 9.6), App.Rotation())
sketch3.addGeometry([
    Part.LineSegment(App.Vector(-45, 28, 0), App.Vector(-45, -28, 0)),
    Part.LineSegment(App.Vector(-45, -28, 0), App.Vector(45, -28, 0)),
    Part.LineSegment(App.Vector(45, -28, 0), App.Vector(45, 28, 0)),
    Part.LineSegment(App.Vector(45, 28, 0), App.Vector(-45, 28, 0)),
], False)
sketch3.addConstraint([
    Sketcher.Constraint("Coincident", 0, 2, 1, 1),
    Sketcher.Constraint("Coincident", 1, 2, 2, 1),
    Sketcher.Constraint("Coincident", 2, 2, 3, 1),
    Sketcher.Constraint("Coincident", 3, 2, 0, 1),
    Sketcher.Constraint("Vertical", 0),
    Sketcher.Constraint("Horizontal", 1),
    Sketcher.Constraint("Vertical", 2),
    Sketcher.Constraint("Horizontal", 3),
    Sketcher.Constraint("Symmetric", 0, 2, 2, 2, -1, 1),
    Sketcher.Constraint("DistanceX", 1, 1, 1, 2, Q("90 mm")),
    Sketcher.Constraint("DistanceY", 0, 2, 0, 1, Q("57 mm")),
])
sketch3.setExpression("Constraints[9]", "Params.sketch3_width")
sketch3.setExpression("Constraints[10]", "Params.sketch3_height")
pocket2 = doc.addObject("PartDesign::Pocket", "Pocket001")
body.addObject(pocket2)
pocket2.Profile = sketch3
pocket2.setExpression("Length", "Params.pocket2_length")
doc.recompute()

fillet = doc.addObject("PartDesign::Fillet", "Fillet")
body.addObject(fillet)
fillet.Base = (pocket2, edges_at(pocket2, [
    (45, -6.05, 28.5),
    (45, -6.05, -28.5),
    (-45, -6.05, -28.5),
    (-45, -6.05, 28.5),
]))
fillet.setExpression("Radius", "Params.fillet_radius")
doc.recompute()

fillet2 = doc.addObject("PartDesign::Fillet", "Fillet001")
body.addObject(fillet2)
fillet2.Base = (fillet, edges_at(fillet, [
    (0, -2.5, -28.5),
    (-45, -2.5, 0),
    (45, -2.5, 0),
    (0, -2.5, 28.5),
    (44.121, -2.5, 27.621),
    (44.121, -2.5, -27.621),
    (-44.121, -2.5, 27.621),
    (-44.121, -2.5, -27.621),
]))
fillet2.setExpression("Radius", "Params.fillet2_radius")

sketch4 = doc.addObject("Sketcher::SketchObject", "Sketch003")
body.addObject(sketch4)
sketch4.AttachmentSupport = (doc.XZ_Plane, [""])
sketch4.MapMode = "FlatFace"
sketch4.AttachmentOffset = App.Placement(App.Vector(0, 0, 2.5), App.Rotation())
sketch4.addGeometry([
    Part.LineSegment(App.Vector(-39, 24, 0), App.Vector(-39, 12, 0)),
    Part.LineSegment(App.Vector(-39, 12, 0), App.Vector(-27, 12, 0)),
    Part.LineSegment(App.Vector(-27, 12, 0), App.Vector(-27, 24, 0)),
    Part.LineSegment(App.Vector(-27, 24, 0), App.Vector(-39, 24, 0)),
    Part.LineSegment(App.Vector(-23, 24, 0), App.Vector(-23, 12, 0)),
    Part.LineSegment(App.Vector(-23, 12, 0), App.Vector(-11, 12, 0)),
    Part.LineSegment(App.Vector(-11, 12, 0), App.Vector(-11, 24, 0)),
    Part.LineSegment(App.Vector(-11, 24, 0), App.Vector(-23, 24, 0)),
    Part.LineSegment(App.Vector(-6, 24, 0), App.Vector(-6, 12, 0)),
    Part.LineSegment(App.Vector(-6, 12, 0), App.Vector(6, 12, 0)),
    Part.LineSegment(App.Vector(6, 12, 0), App.Vector(6, 24, 0)),
    Part.LineSegment(App.Vector(6, 24, 0), App.Vector(-6, 24, 0)),
    Part.LineSegment(App.Vector(10, 24, 0), App.Vector(10, 12, 0)),
    Part.LineSegment(App.Vector(10, 12, 0), App.Vector(22, 12, 0)),
    Part.LineSegment(App.Vector(22, 12, 0), App.Vector(22, 24, 0)),
    Part.LineSegment(App.Vector(22, 24, 0), App.Vector(10, 24, 0)),
    Part.LineSegment(App.Vector(27, 24, 0), App.Vector(27, 12, 0)),
    Part.LineSegment(App.Vector(27, 12, 0), App.Vector(39, 12, 0)),
    Part.LineSegment(App.Vector(39, 12, 0), App.Vector(39, 24, 0)),
    Part.LineSegment(App.Vector(39, 24, 0), App.Vector(27, 24, 0)),
    Part.LineSegment(App.Vector(-23, 6, 0), App.Vector(-23, -6, 0)),
    Part.LineSegment(App.Vector(-23, -6, 0), App.Vector(-11, -6, 0)),
    Part.LineSegment(App.Vector(-11, -6, 0), App.Vector(-11, 6, 0)),
    Part.LineSegment(App.Vector(-11, 6, 0), App.Vector(-23, 6, 0)),
    Part.LineSegment(App.Vector(-6, 6, 0), App.Vector(-6, -6, 0)),
    Part.LineSegment(App.Vector(-6, -6, 0), App.Vector(6, -6, 0)),
    Part.LineSegment(App.Vector(6, -6, 0), App.Vector(6, 6, 0)),
    Part.LineSegment(App.Vector(6, 6, 0), App.Vector(-6, 6, 0)),
    Part.LineSegment(App.Vector(10, 6, 0), App.Vector(10, -6, 0)),
    Part.LineSegment(App.Vector(10, -6, 0), App.Vector(22, -6, 0)),
    Part.LineSegment(App.Vector(22, -6, 0), App.Vector(22, 6, 0)),
    Part.LineSegment(App.Vector(22, 6, 0), App.Vector(10, 6, 0)),
    Part.LineSegment(App.Vector(-23, -12, 0), App.Vector(-23, -24, 0)),
    Part.LineSegment(App.Vector(-23, -24, 0), App.Vector(-11, -24, 0)),
    Part.LineSegment(App.Vector(-11, -24, 0), App.Vector(-11, -12, 0)),
    Part.LineSegment(App.Vector(-11, -12, 0), App.Vector(-23, -12, 0)),
    Part.LineSegment(App.Vector(-6, -12, 0), App.Vector(-6, -24, 0)),
    Part.LineSegment(App.Vector(-6, -24, 0), App.Vector(6, -24, 0)),
    Part.LineSegment(App.Vector(6, -24, 0), App.Vector(6, -12, 0)),
    Part.LineSegment(App.Vector(6, -12, 0), App.Vector(-6, -12, 0)),
    Part.LineSegment(App.Vector(10, -12, 0), App.Vector(10, -24, 0)),
    Part.LineSegment(App.Vector(10, -24, 0), App.Vector(22, -24, 0)),
    Part.LineSegment(App.Vector(22, -24, 0), App.Vector(22, -12, 0)),
    Part.LineSegment(App.Vector(22, -12, 0), App.Vector(10, -12, 0)),
    Part.LineSegment(App.Vector(27, -12, 0), App.Vector(27, -24, 0)),
    Part.LineSegment(App.Vector(27, -24, 0), App.Vector(39, -24, 0)),
    Part.LineSegment(App.Vector(39, -24, 0), App.Vector(39, -12, 0)),
    Part.LineSegment(App.Vector(39, -12, 0), App.Vector(27, -12, 0)),
    Part.LineSegment(App.Vector(-39, 6, 0), App.Vector(-39, -6, 0)),
    Part.LineSegment(App.Vector(-39, -6, 0), App.Vector(-27, -6, 0)),
    Part.LineSegment(App.Vector(-27, -6, 0), App.Vector(-27, 6, 0)),
    Part.LineSegment(App.Vector(-27, 6, 0), App.Vector(-39, 6, 0)),
    Part.LineSegment(App.Vector(-39, -12, 0), App.Vector(-39, -24, 0)),
    Part.LineSegment(App.Vector(-39, -24, 0), App.Vector(-27, -24, 0)),
    Part.LineSegment(App.Vector(-27, -24, 0), App.Vector(-27, -12, 0)),
    Part.LineSegment(App.Vector(-27, -12, 0), App.Vector(-39, -12, 0)),
], False)
sketch4.addConstraint([
    Sketcher.Constraint("Coincident", 0, 2, 1, 1),
    Sketcher.Constraint("Coincident", 1, 2, 2, 1),
    Sketcher.Constraint("Coincident", 2, 2, 3, 1),
    Sketcher.Constraint("Coincident", 3, 2, 0, 1),
    Sketcher.Constraint("Coincident", 4, 2, 5, 1),
    Sketcher.Constraint("Coincident", 5, 2, 6, 1),
    Sketcher.Constraint("Coincident", 6, 2, 7, 1),
    Sketcher.Constraint("Coincident", 7, 2, 4, 1),
    Sketcher.Constraint("Coincident", 8, 2, 9, 1),
    Sketcher.Constraint("Coincident", 9, 2, 10, 1),
    Sketcher.Constraint("Coincident", 10, 2, 11, 1),
    Sketcher.Constraint("Coincident", 11, 2, 8, 1),
    Sketcher.Constraint("Coincident", 12, 2, 13, 1),
    Sketcher.Constraint("Coincident", 13, 2, 14, 1),
    Sketcher.Constraint("Coincident", 14, 2, 15, 1),
    Sketcher.Constraint("Coincident", 15, 2, 12, 1),
    Sketcher.Constraint("Coincident", 16, 2, 17, 1),
    Sketcher.Constraint("Coincident", 17, 2, 18, 1),
    Sketcher.Constraint("Coincident", 18, 2, 19, 1),
    Sketcher.Constraint("Coincident", 19, 2, 16, 1),
    Sketcher.Constraint("Coincident", 20, 2, 21, 1),
    Sketcher.Constraint("Coincident", 21, 2, 22, 1),
    Sketcher.Constraint("Coincident", 22, 2, 23, 1),
    Sketcher.Constraint("Coincident", 23, 2, 20, 1),
    Sketcher.Constraint("Coincident", 24, 2, 25, 1),
    Sketcher.Constraint("Coincident", 25, 2, 26, 1),
    Sketcher.Constraint("Coincident", 26, 2, 27, 1),
    Sketcher.Constraint("Coincident", 27, 2, 24, 1),
    Sketcher.Constraint("Coincident", 28, 2, 29, 1),
    Sketcher.Constraint("Coincident", 29, 2, 30, 1),
    Sketcher.Constraint("Coincident", 30, 2, 31, 1),
    Sketcher.Constraint("Coincident", 31, 2, 28, 1),
    Sketcher.Constraint("Coincident", 32, 2, 33, 1),
    Sketcher.Constraint("Coincident", 33, 2, 34, 1),
    Sketcher.Constraint("Coincident", 34, 2, 35, 1),
    Sketcher.Constraint("Coincident", 35, 2, 32, 1),
    Sketcher.Constraint("Coincident", 36, 2, 37, 1),
    Sketcher.Constraint("Coincident", 37, 2, 38, 1),
    Sketcher.Constraint("Coincident", 38, 2, 39, 1),
    Sketcher.Constraint("Coincident", 39, 2, 36, 1),
    Sketcher.Constraint("Coincident", 40, 2, 41, 1),
    Sketcher.Constraint("Coincident", 41, 2, 42, 1),
    Sketcher.Constraint("Coincident", 42, 2, 43, 1),
    Sketcher.Constraint("Coincident", 43, 2, 40, 1),
    Sketcher.Constraint("Coincident", 44, 2, 45, 1),
    Sketcher.Constraint("Coincident", 45, 2, 46, 1),
    Sketcher.Constraint("Coincident", 46, 2, 47, 1),
    Sketcher.Constraint("Coincident", 47, 2, 44, 1),
    Sketcher.Constraint("Coincident", 48, 2, 49, 1),
    Sketcher.Constraint("Coincident", 49, 2, 50, 1),
    Sketcher.Constraint("Coincident", 50, 2, 51, 1),
    Sketcher.Constraint("Coincident", 51, 2, 48, 1),
    Sketcher.Constraint("Coincident", 52, 2, 53, 1),
    Sketcher.Constraint("Coincident", 53, 2, 54, 1),
    Sketcher.Constraint("Coincident", 54, 2, 55, 1),
    Sketcher.Constraint("Coincident", 55, 2, 52, 1),
    Sketcher.Constraint("Vertical", 0),
    Sketcher.Constraint("Horizontal", 1),
    Sketcher.Constraint("Vertical", 2),
    Sketcher.Constraint("Horizontal", 3),
    Sketcher.Constraint("Vertical", 4),
    Sketcher.Constraint("Horizontal", 5),
    Sketcher.Constraint("Vertical", 6),
    Sketcher.Constraint("Horizontal", 7),
    Sketcher.Constraint("Vertical", 8),
    Sketcher.Constraint("Horizontal", 9),
    Sketcher.Constraint("Vertical", 10),
    Sketcher.Constraint("Horizontal", 11),
    Sketcher.Constraint("Vertical", 12),
    Sketcher.Constraint("Horizontal", 13),
    Sketcher.Constraint("Vertical", 14),
    Sketcher.Constraint("Horizontal", 15),
    Sketcher.Constraint("Vertical", 16),
    Sketcher.Constraint("Horizontal", 17),
    Sketcher.Constraint("Vertical", 18),
    Sketcher.Constraint("Horizontal", 19),
    Sketcher.Constraint("Vertical", 20),
    Sketcher.Constraint("Horizontal", 21),
    Sketcher.Constraint("Vertical", 22),
    Sketcher.Constraint("Horizontal", 23),
    Sketcher.Constraint("Vertical", 24),
    Sketcher.Constraint("Horizontal", 25),
    Sketcher.Constraint("Vertical", 26),
    Sketcher.Constraint("Horizontal", 27),
    Sketcher.Constraint("Vertical", 28),
    Sketcher.Constraint("Horizontal", 29),
    Sketcher.Constraint("Vertical", 30),
    Sketcher.Constraint("Horizontal", 31),
    Sketcher.Constraint("Vertical", 32),
    Sketcher.Constraint("Horizontal", 33),
    Sketcher.Constraint("Vertical", 34),
    Sketcher.Constraint("Horizontal", 35),
    Sketcher.Constraint("Vertical", 36),
    Sketcher.Constraint("Horizontal", 37),
    Sketcher.Constraint("Vertical", 38),
    Sketcher.Constraint("Horizontal", 39),
    Sketcher.Constraint("Vertical", 40),
    Sketcher.Constraint("Horizontal", 41),
    Sketcher.Constraint("Vertical", 42),
    Sketcher.Constraint("Horizontal", 43),
    Sketcher.Constraint("Vertical", 44),
    Sketcher.Constraint("Horizontal", 45),
    Sketcher.Constraint("Vertical", 46),
    Sketcher.Constraint("Horizontal", 47),
    Sketcher.Constraint("Vertical", 48),
    Sketcher.Constraint("Horizontal", 49),
    Sketcher.Constraint("Vertical", 50),
    Sketcher.Constraint("Horizontal", 51),
    Sketcher.Constraint("Vertical", 52),
    Sketcher.Constraint("Horizontal", 53),
    Sketcher.Constraint("Vertical", 54),
    Sketcher.Constraint("Horizontal", 55),
    Sketcher.Constraint("Symmetric", 7, 2, 32, 2, -1),
    Sketcher.Constraint("Symmetric", 5, 2, 34, 2, -1),
    Sketcher.Constraint("Symmetric", 11, 2, 36, 2, -1),
    Sketcher.Constraint("Symmetric", 9, 2, 38, 2, -1),
    Sketcher.Constraint("Symmetric", 15, 2, 40, 2, -1),
    Sketcher.Constraint("Symmetric", 13, 2, 42, 2, -1),
    Sketcher.Constraint("Symmetric", 19, 2, 44, 2, -1),
    Sketcher.Constraint("Symmetric", 17, 2, 46, 2, -1),
    Sketcher.Constraint("Symmetric", 3, 2, 52, 2, -1),
    Sketcher.Constraint("Symmetric", 1, 2, 54, 2, -1),
    Sketcher.Constraint("Horizontal", 1, 2, 4, 2),
    Sketcher.Constraint("Horizontal", 3, 2, 6, 2),
    Sketcher.Constraint("Horizontal", 5, 2, 8, 2),
    Sketcher.Constraint("Horizontal", 7, 2, 10, 2),
    Sketcher.Constraint("Horizontal", 9, 2, 12, 2),
    Sketcher.Constraint("Horizontal", 11, 2, 14, 2),
    Sketcher.Constraint("Horizontal", 13, 2, 16, 2),
    Sketcher.Constraint("Horizontal", 15, 2, 18, 2),
    Sketcher.Constraint("Horizontal", 21, 2, 24, 2),
    Sketcher.Constraint("Horizontal", 23, 2, 26, 2),
    Sketcher.Constraint("Horizontal", 25, 2, 28, 2),
    Sketcher.Constraint("Horizontal", 27, 2, 30, 2),
    Sketcher.Constraint("Horizontal", 29, 2, 48, 2),
    Sketcher.Constraint("Horizontal", 31, 2, 50, 2),
    Sketcher.Constraint("Vertical", 7, 2, 20, 2),
    Sketcher.Constraint("Vertical", 6, 2, 21, 2),
    Sketcher.Constraint("Vertical", 11, 2, 24, 2),
    Sketcher.Constraint("Vertical", 10, 2, 25, 2),
    Sketcher.Constraint("Vertical", 15, 2, 28, 2),
    Sketcher.Constraint("Vertical", 14, 2, 29, 2),
    Sketcher.Constraint("Vertical", 3, 2, 48, 2),
    Sketcher.Constraint("Vertical", 2, 2, 49, 2),
    Sketcher.Constraint("Equal", 3, 5),
    Sketcher.Constraint("Equal", 7, 9),
    Sketcher.Constraint("Equal", 11, 13),
    Sketcher.Constraint("Equal", 15, 17),
    Sketcher.Constraint("Equal", 55, 0),
    Sketcher.Constraint("Equal", 18, 20),
    Sketcher.Constraint("DistanceX", 1, 1, 1, 2, Q("12 mm")),
    Sketcher.Constraint("DistanceX", 0, 2, -1, 1, Q("39 mm")),
    Sketcher.Constraint("DistanceY", -1, 1, 0, 2, Q("12 mm")),
    Sketcher.Constraint("DistanceY", 20, 2, -1, 1, Q("6 mm")),
    Sketcher.Constraint("DistanceX", 4, 2, -1, 1, Q("22.6 mm")),
    Sketcher.Constraint("DistanceX", 8, 2, -1, 1, Q("6.2 mm")),
    Sketcher.Constraint("DistanceX", -1, 1, 12, 2, Q("10.2 mm")),
    Sketcher.Constraint("DistanceX", -1, 1, 16, 2, Q("26.6 mm")),
])
sketch4.setExpression("Constraints[150]", "Params.sketch4_width")
pocket3 = doc.addObject("PartDesign::Pocket", "Pocket002")
body.addObject(pocket3)
pocket3.Profile = sketch4
pocket3.Type = "ThroughAll"

doc.recompute()
